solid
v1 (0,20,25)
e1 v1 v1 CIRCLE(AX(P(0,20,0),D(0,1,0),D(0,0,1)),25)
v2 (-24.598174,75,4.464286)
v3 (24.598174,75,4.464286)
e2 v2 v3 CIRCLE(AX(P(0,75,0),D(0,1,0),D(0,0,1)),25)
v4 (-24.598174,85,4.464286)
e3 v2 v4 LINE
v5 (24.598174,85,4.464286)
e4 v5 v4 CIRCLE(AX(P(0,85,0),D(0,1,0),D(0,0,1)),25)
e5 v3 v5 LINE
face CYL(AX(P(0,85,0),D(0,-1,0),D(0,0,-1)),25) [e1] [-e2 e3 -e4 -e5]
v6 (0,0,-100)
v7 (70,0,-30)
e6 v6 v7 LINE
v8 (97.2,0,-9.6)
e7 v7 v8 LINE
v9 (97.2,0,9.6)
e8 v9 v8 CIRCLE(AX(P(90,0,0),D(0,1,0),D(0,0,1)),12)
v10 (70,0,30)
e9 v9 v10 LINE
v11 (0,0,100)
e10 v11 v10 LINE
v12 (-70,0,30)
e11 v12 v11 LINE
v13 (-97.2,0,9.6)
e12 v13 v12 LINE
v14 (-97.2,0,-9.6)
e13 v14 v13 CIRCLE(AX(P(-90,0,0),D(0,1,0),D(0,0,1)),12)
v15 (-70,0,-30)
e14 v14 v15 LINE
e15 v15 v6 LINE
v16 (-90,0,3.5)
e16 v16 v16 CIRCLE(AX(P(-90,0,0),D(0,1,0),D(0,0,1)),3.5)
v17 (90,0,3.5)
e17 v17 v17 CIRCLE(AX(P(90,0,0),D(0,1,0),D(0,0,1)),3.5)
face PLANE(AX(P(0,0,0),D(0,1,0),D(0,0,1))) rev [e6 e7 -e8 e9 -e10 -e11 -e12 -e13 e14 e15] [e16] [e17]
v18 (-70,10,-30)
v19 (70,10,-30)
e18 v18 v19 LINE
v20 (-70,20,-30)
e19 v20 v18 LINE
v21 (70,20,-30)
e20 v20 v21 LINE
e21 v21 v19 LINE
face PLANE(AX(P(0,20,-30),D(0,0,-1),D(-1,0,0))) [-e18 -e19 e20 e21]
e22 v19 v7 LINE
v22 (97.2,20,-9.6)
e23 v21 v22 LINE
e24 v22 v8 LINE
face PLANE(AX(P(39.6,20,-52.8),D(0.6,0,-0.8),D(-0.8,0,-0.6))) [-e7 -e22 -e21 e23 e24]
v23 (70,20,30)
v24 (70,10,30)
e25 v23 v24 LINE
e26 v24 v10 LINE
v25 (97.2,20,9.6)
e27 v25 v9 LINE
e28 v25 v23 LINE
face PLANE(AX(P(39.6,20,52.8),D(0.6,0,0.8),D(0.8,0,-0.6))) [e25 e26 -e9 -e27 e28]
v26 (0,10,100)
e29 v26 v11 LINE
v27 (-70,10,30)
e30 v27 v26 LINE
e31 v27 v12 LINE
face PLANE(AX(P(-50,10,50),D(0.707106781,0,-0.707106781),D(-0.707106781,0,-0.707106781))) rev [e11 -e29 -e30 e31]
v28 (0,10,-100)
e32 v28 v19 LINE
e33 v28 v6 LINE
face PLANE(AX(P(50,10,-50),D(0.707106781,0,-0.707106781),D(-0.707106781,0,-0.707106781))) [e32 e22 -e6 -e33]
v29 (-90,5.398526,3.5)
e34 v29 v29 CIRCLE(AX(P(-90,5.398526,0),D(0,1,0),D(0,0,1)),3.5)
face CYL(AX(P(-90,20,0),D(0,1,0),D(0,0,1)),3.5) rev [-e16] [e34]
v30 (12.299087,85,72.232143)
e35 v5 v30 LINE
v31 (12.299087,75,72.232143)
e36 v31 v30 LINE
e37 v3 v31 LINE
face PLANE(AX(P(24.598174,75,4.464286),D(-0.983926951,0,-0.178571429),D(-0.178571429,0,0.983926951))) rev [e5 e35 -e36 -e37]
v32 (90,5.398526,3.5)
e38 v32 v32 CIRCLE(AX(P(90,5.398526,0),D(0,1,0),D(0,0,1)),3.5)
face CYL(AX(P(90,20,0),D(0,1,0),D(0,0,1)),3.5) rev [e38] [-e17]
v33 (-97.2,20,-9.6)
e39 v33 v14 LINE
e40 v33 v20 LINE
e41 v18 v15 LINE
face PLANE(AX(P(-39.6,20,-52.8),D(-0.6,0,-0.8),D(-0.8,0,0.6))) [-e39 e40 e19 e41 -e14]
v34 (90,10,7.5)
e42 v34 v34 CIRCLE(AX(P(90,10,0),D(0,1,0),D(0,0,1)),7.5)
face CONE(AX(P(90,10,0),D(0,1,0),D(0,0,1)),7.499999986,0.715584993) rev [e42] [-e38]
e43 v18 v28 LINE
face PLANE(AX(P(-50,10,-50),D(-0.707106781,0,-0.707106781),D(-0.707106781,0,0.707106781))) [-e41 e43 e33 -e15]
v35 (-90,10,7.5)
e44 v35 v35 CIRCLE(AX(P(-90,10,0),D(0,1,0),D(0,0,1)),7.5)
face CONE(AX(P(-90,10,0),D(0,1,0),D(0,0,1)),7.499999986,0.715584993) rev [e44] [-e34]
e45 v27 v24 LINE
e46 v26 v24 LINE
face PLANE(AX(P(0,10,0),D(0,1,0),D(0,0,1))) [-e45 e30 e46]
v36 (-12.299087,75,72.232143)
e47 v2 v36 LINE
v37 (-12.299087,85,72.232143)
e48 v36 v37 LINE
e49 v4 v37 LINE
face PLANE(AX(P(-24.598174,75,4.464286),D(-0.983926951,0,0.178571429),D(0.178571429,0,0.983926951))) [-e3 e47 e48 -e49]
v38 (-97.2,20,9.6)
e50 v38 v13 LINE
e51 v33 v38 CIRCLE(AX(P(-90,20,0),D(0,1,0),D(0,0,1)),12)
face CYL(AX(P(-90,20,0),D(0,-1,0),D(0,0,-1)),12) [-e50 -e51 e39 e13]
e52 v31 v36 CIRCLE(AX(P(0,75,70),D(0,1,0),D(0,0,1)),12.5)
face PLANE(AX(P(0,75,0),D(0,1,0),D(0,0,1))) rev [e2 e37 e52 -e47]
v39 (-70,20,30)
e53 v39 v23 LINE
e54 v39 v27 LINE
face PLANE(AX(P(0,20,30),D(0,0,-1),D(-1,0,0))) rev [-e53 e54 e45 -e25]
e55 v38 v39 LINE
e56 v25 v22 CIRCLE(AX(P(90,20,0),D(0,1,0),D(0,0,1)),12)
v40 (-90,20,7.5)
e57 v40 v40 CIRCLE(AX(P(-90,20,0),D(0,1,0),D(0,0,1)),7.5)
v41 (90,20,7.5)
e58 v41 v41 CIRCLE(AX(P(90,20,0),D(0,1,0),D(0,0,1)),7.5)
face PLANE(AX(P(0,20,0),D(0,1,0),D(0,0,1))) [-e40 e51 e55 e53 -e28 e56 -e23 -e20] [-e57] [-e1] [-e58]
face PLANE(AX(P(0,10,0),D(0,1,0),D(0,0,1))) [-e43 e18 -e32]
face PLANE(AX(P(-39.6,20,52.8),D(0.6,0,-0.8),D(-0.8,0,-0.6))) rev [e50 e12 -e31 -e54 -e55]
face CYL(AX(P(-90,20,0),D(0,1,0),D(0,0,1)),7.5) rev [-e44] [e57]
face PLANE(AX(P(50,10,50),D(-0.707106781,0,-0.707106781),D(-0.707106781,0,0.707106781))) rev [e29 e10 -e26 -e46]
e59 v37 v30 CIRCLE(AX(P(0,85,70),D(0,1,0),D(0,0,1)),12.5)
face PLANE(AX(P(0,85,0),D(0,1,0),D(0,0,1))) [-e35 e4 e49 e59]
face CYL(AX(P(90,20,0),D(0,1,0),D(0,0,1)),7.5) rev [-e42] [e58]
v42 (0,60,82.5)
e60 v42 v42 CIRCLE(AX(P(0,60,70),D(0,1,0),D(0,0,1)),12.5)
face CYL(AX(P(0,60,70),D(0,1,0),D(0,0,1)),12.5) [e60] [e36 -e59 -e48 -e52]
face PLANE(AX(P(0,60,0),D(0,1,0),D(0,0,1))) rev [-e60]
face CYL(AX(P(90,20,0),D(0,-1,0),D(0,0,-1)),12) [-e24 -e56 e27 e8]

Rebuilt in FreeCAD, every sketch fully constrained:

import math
import FreeCAD as App
import Part
import Sketcher

V = App.Vector
Q = App.Units.Quantity

doc = App.newDocument("Part")
body = doc.addObject("PartDesign::Body", "Body")

sketch1 = doc.addObject("Sketcher::SketchObject", "Sketch")
body.addObject(sketch1)
sketch1.AttachmentSupport = (doc.XZ_Plane, [""])
sketch1.MapMode = "FlatFace"
sketch1.addGeometry(Part.LineSegment(V(-70, 30, 0), V(0, 100, 0)), False)
sketch1.addGeometry(Part.LineSegment(V(0, 100, 0), V(70, 30, 0)), False)
sketch1.addGeometry(Part.LineSegment(V(70, 30, 0), V(-70, 30, 0)), False)
sketch1.addConstraint(Sketcher.Constraint("Coincident", 0, 2, 1, 1))
sketch1.addConstraint(Sketcher.Constraint("Coincident", 1, 2, 2, 1))
sketch1.addConstraint(Sketcher.Constraint("Coincident", 2, 2, 0, 1))
sketch1.addConstraint(Sketcher.Constraint("Horizontal", 2))
sketch1.addConstraint(Sketcher.Constraint("PointOnObject", 0, 2, -2))
sketch1.addConstraint(Sketcher.Constraint("Perpendicular", 0, 1))
sketch1.addConstraint(Sketcher.Constraint("Equal", 0, 1))
sketch1.addConstraint(Sketcher.Constraint("DistanceX", 2, 2, 2, 1, Q("140 mm")))
sketch1.addConstraint(Sketcher.Constraint("DistanceY", -1, 1, 0, 2, Q("100 mm")))
pad1 = doc.addObject("PartDesign::Pad", "Pad")
body.addObject(pad1)
pad1.Profile = sketch1
pad1.Length = 10
pad1.Reversed = True
body2 = doc.addObject("PartDesign::Body", "Body001")

sketch2 = doc.addObject("Sketcher::SketchObject", "Sketch001")
body2.addObject(sketch2)
sketch2.AttachmentSupport = (doc.getObject("XZ_Plane001"), [""])
sketch2.MapMode = "FlatFace"
sketch2.addGeometry(Part.LineSegment(V(70, -30, 0), V(0, -100, 0)), False)
sketch2.addGeometry(Part.LineSegment(V(0, -100, 0), V(-70, -30, 0)), False)
sketch2.addGeometry(Part.LineSegment(V(-70, -30, 0), V(70, -30, 0)), False)
sketch2.addConstraint(Sketcher.Constraint("Coincident", 0, 2, 1, 1))
sketch2.addConstraint(Sketcher.Constraint("Coincident", 1, 2, 2, 1))
sketch2.addConstraint(Sketcher.Constraint("Coincident", 2, 2, 0, 1))
sketch2.addConstraint(Sketcher.Constraint("Horizontal", 2))
sketch2.addConstraint(Sketcher.Constraint("PointOnObject", 0, 2, -2))
sketch2.addConstraint(Sketcher.Constraint("Perpendicular", 0, 1))
sketch2.addConstraint(Sketcher.Constraint("Equal", 0, 1))
sketch2.addConstraint(Sketcher.Constraint("DistanceX", 2, 1, 2, 2, Q("140 mm")))
sketch2.addConstraint(Sketcher.Constraint("DistanceY", 0, 2, -1, 1, Q("100 mm")))
pad2 = doc.addObject("PartDesign::Pad", "Pad001")
body2.addObject(pad2)
pad2.Profile = sketch2
pad2.Length = 10
pad2.Reversed = True
body.AllowCompound = True
doc.recompute()

boolean = doc.addObject("PartDesign::Boolean", "Boolean")
body.addObject(boolean)
boolean.Type = "Fuse"
boolean.addObjects([body2])

sketch3 = doc.addObject("Sketcher::SketchObject", "Sketch002")
body.addObject(sketch3)
sketch3.AttachmentSupport = (doc.XZ_Plane, [""])
sketch3.MapMode = "FlatFace"
sketch3.addGeometry(Part.LineSegment(V(-70, -30, 0), V(-97.2, -9.6, 0)), False)
sketch3.addGeometry(Part.ArcOfCircle(Part.Circle(V(-90, 0, 0), V(0, 0, 1), 12), math.radians(126.869898), math.radians(233.130102)), False)
sketch3.addGeometry(Part.LineSegment(V(-97.2, 9.6, 0), V(-70, 30, 0)), False)
sketch3.addGeometry(Part.LineSegment(V(-70, 30, 0), V(70, 30, 0)), False)
sketch3.addGeometry(Part.LineSegment(V(70, 30, 0), V(97.2, 9.6, 0)), False)
sketch3.addGeometry(Part.ArcOfCircle(Part.Circle(V(90, 0, 0), V(0, 0, 1), 12), math.radians(-53.130102), math.radians(53.130102)), False)
sketch3.addGeometry(Part.LineSegment(V(97.2, -9.6, 0), V(70, -30, 0)), False)
sketch3.addGeometry(Part.LineSegment(V(70, -30, 0), V(-70, -30, 0)), False)
sketch3.addGeometry(Part.Circle(V(0, 0, 0), V(0, 0, 1), 25), False)
sketch3.addConstraint(Sketcher.Constraint("Tangent", 0, 2, 1, 2))
sketch3.addConstraint(Sketcher.Constraint("Tangent", 1, 1, 2, 1))
sketch3.addConstraint(Sketcher.Constraint("Coincident", 2, 2, 3, 1))
sketch3.addConstraint(Sketcher.Constraint("Coincident", 3, 2, 4, 1))
sketch3.addConstraint(Sketcher.Constraint("Tangent", 4, 2, 5, 2))
sketch3.addConstraint(Sketcher.Constraint("Tangent", 5, 1, 6, 1))
sketch3.addConstraint(Sketcher.Constraint("Coincident", 6, 2, 7, 1))
sketch3.addConstraint(Sketcher.Constraint("Coincident", 7, 2, 0, 1))
sketch3.addConstraint(Sketcher.Constraint("Horizontal", 3))
sketch3.addConstraint(Sketcher.Constraint("Horizontal", 7))
sketch3.addConstraint(Sketcher.Constraint("Coincident", 8, 3, -1, 1))
sketch3.addConstraint(Sketcher.Constraint("Equal", 1, 5))
sketch3.addConstraint(Sketcher.Constraint("Symmetric", 1, 3, 5, 3, -1, 1))
sketch3.addConstraint(Sketcher.Constraint("Symmetric", 2, 2, 6, 2, -1, 1))
sketch3.addConstraint(Sketcher.Constraint("Symmetric", 1, 1, 4, 2, -2))
sketch3.addConstraint(Sketcher.Constraint("Parallel", 0, 4))
sketch3.addConstraint(Sketcher.Constraint("Diameter", 8, Q("50 mm")))
sketch3.addConstraint(Sketcher.Constraint("Radius", 1, Q("12 mm")))
sketch3.addConstraint(Sketcher.Constraint("DistanceX", 3, 1, 3, 2, Q("140 mm")))
sketch3.addConstraint(Sketcher.Constraint("Distance", 0, Q("34 mm")))
sketch3.addConstraint(Sketcher.Constraint("DistanceX", 1, 3, -1, 1, Q("90 mm")))
pad3 = doc.addObject("PartDesign::Pad", "Pad002")
body.addObject(pad3)
pad3.Profile = sketch3
pad3.Length = 20
pad3.Reversed = True

sketch4 = doc.addObject("Sketcher::SketchObject", "Sketch003")
body.addObject(sketch4)
sketch4.AttachmentSupport = (doc.XZ_Plane, [""])
sketch4.MapMode = "FlatFace"
sketch4.addGeometry(Part.Circle(V(0, 0, 0), V(0, 0, 1), 25), False)
sketch4.addConstraint(Sketcher.Constraint("Coincident", 0, 3, -1, 1))
sketch4.addConstraint(Sketcher.Constraint("Diameter", 0, Q("50 mm")))
pad4 = doc.addObject("PartDesign::Pad", "Pad003")
body.addObject(pad4)
pad4.Profile = sketch4
pad4.Length = 85
pad4.Reversed = True

sketch5 = doc.addObject("Sketcher::SketchObject", "Sketch004")
body.addObject(sketch5)
sketch5.AttachmentSupport = (doc.XZ_Plane, [""])
sketch5.MapMode = "FlatFace"
sketch5.AttachmentOffset = App.Placement(V(0, 0, -85), App.Rotation())
sketch5.addGeometry(Part.ArcOfCircle(Part.Circle(V(0, 0, 0), V(0, 0, 1), 25), math.radians(10.286561), math.radians(169.713439)), False)
sketch5.addGeometry(Part.LineSegment(V(-24.598174, 4.464286, 0), V(-12.299087, 72.232143, 0)), False)
sketch5.addGeometry(Part.ArcOfCircle(Part.Circle(V(0, 70, 0), V(0, 0, 1), 12.5), math.radians(169.713439), math.radians(360)), False)
sketch5.addGeometry(Part.ArcOfCircle(Part.Circle(V(0, 70, 0), V(0, 0, 1), 12.5), math.radians(0), math.radians(10.286561)), False)
sketch5.addGeometry(Part.LineSegment(V(12.299087, 72.232143, 0), V(24.598174, 4.464286, 0)), False)
sketch5.addConstraint(Sketcher.Constraint("Tangent", 0, 2, 1, 1))
sketch5.addConstraint(Sketcher.Constraint("Tangent", 1, 2, 2, 1))
sketch5.addConstraint(Sketcher.Constraint("Tangent", 2, 2, 3, 1))
sketch5.addConstraint(Sketcher.Constraint("Tangent", 3, 2, 4, 1))
sketch5.addConstraint(Sketcher.Constraint("Tangent", 4, 2, 0, 1))
sketch5.addConstraint(Sketcher.Constraint("Coincident", 0, 3, -1, 1))
sketch5.addConstraint(Sketcher.Constraint("Equal", 2, 3))
sketch5.addConstraint(Sketcher.Constraint("PointOnObject", 2, 3, -2))
sketch5.addConstraint(Sketcher.Constraint("Horizontal", 3, 3, 2, 2))
sketch5.addConstraint(Sketcher.Constraint("Radius", 0, Q("25 mm")))
sketch5.addConstraint(Sketcher.Constraint("Radius", 2, Q("12.5 mm")))
sketch5.addConstraint(Sketcher.Constraint("DistanceY", -1, 1, 2, 3, Q("70 mm")))
pad5 = doc.addObject("PartDesign::Pad", "Pad004")
body.addObject(pad5)
pad5.Profile = sketch5
pad5.Length = 10

sketch6 = doc.addObject("Sketcher::SketchObject", "Sketch005")
body.addObject(sketch6)
sketch6.AttachmentSupport = (doc.XZ_Plane, [""])
sketch6.MapMode = "FlatFace"
sketch6.AttachmentOffset = App.Placement(V(0, 0, -85), App.Rotation())
sketch6.addGeometry(Part.Circle(V(0, 70, 0), V(0, 0, 1), 12.5), False)
sketch6.addConstraint(Sketcher.Constraint("PointOnObject", 0, 3, -2))
sketch6.addConstraint(Sketcher.Constraint("Diameter", 0, Q("25 mm")))
sketch6.addConstraint(Sketcher.Constraint("DistanceY", -1, 1, 0, 3, Q("70 mm")))
pad6 = doc.addObject("PartDesign::Pad", "Pad005")
body.addObject(pad6)
pad6.Profile = sketch6
pad6.Length = 25

sketch7 = doc.addObject("Sketcher::SketchObject", "Sketch006")
body.addObject(sketch7)
sketch7.AttachmentSupport = (doc.YZ_Plane, [""])
sketch7.MapMode = "FlatFace"
sketch7.AttachmentOffset = App.Placement(V(0, 0, 90), App.Rotation())
sketch7.addGeometry(Part.LineSegment(V(0, 0, 0), V(20, 0, 0)), False)
sketch7.addGeometry(Part.LineSegment(V(20, 0, 0), V(20, 7.5, 0)), False)
sketch7.addGeometry(Part.LineSegment(V(20, 7.5, 0), V(10, 7.5, 0)), False)
sketch7.addGeometry(Part.LineSegment(V(10, 7.5, 0), V(5.398526, 3.5, 0)), False)
sketch7.addGeometry(Part.LineSegment(V(5.398526, 3.5, 0), V(0, 3.5, 0)), False)
sketch7.addGeometry(Part.LineSegment(V(0, 3.5, 0), V(0, 0, 0)), False)
sketch7.addConstraint(Sketcher.Constraint("Coincident", 0, 2, 1, 1))
sketch7.addConstraint(Sketcher.Constraint("Coincident", 1, 2, 2, 1))
sketch7.addConstraint(Sketcher.Constraint("Coincident", 2, 2, 3, 1))
sketch7.addConstraint(Sketcher.Constraint("Coincident", 3, 2, 4, 1))
sketch7.addConstraint(Sketcher.Constraint("Coincident", 4, 2, 5, 1))
sketch7.addConstraint(Sketcher.Constraint("Coincident", 5, 2, 0, 1))
sketch7.addConstraint(Sketcher.Constraint("Horizontal", 0))
sketch7.addConstraint(Sketcher.Constraint("Vertical", 1))
sketch7.addConstraint(Sketcher.Constraint("Horizontal", 2))
sketch7.addConstraint(Sketcher.Constraint("Horizontal", 4))
sketch7.addConstraint(Sketcher.Constraint("Vertical", 5))
sketch7.addConstraint(Sketcher.Constraint("Coincident", 5, 2, -1, 1))
sketch7.addConstraint(Sketcher.Constraint("DistanceX", 0, 1, 0, 2, Q("20 mm")))
sketch7.addConstraint(Sketcher.Constraint("DistanceX", 2, 2, 2, 1, Q("10 mm")))
sketch7.addConstraint(Sketcher.Constraint("Angle", 3, Q("-139 deg")))
sketch7.addConstraint(Sketcher.Constraint("DistanceY", 1, 1, 1, 2, Q("7.5 mm")))
sketch7.addConstraint(Sketcher.Constraint("DistanceY", 5, 2, 5, 1, Q("3.5 mm")))
groove = doc.addObject("PartDesign::Groove", "Groove")
body.addObject(groove)
groove.Profile = sketch7
groove.ReferenceAxis = (sketch7, ["H_Axis"])
groove.Angle = 360
doc.recompute()

linearpattern = doc.addObject("PartDesign::LinearPattern", "LinearPattern")
body.addObject(linearpattern)
linearpattern.Originals = [groove]
linearpattern.Direction = (doc.X_Axis, [""])
linearpattern.Mode = "offset"
linearpattern.Offset = 180
linearpattern.Occurrences = 2
linearpattern.Reversed = True
body.Tip = linearpattern

doc.recompute()
